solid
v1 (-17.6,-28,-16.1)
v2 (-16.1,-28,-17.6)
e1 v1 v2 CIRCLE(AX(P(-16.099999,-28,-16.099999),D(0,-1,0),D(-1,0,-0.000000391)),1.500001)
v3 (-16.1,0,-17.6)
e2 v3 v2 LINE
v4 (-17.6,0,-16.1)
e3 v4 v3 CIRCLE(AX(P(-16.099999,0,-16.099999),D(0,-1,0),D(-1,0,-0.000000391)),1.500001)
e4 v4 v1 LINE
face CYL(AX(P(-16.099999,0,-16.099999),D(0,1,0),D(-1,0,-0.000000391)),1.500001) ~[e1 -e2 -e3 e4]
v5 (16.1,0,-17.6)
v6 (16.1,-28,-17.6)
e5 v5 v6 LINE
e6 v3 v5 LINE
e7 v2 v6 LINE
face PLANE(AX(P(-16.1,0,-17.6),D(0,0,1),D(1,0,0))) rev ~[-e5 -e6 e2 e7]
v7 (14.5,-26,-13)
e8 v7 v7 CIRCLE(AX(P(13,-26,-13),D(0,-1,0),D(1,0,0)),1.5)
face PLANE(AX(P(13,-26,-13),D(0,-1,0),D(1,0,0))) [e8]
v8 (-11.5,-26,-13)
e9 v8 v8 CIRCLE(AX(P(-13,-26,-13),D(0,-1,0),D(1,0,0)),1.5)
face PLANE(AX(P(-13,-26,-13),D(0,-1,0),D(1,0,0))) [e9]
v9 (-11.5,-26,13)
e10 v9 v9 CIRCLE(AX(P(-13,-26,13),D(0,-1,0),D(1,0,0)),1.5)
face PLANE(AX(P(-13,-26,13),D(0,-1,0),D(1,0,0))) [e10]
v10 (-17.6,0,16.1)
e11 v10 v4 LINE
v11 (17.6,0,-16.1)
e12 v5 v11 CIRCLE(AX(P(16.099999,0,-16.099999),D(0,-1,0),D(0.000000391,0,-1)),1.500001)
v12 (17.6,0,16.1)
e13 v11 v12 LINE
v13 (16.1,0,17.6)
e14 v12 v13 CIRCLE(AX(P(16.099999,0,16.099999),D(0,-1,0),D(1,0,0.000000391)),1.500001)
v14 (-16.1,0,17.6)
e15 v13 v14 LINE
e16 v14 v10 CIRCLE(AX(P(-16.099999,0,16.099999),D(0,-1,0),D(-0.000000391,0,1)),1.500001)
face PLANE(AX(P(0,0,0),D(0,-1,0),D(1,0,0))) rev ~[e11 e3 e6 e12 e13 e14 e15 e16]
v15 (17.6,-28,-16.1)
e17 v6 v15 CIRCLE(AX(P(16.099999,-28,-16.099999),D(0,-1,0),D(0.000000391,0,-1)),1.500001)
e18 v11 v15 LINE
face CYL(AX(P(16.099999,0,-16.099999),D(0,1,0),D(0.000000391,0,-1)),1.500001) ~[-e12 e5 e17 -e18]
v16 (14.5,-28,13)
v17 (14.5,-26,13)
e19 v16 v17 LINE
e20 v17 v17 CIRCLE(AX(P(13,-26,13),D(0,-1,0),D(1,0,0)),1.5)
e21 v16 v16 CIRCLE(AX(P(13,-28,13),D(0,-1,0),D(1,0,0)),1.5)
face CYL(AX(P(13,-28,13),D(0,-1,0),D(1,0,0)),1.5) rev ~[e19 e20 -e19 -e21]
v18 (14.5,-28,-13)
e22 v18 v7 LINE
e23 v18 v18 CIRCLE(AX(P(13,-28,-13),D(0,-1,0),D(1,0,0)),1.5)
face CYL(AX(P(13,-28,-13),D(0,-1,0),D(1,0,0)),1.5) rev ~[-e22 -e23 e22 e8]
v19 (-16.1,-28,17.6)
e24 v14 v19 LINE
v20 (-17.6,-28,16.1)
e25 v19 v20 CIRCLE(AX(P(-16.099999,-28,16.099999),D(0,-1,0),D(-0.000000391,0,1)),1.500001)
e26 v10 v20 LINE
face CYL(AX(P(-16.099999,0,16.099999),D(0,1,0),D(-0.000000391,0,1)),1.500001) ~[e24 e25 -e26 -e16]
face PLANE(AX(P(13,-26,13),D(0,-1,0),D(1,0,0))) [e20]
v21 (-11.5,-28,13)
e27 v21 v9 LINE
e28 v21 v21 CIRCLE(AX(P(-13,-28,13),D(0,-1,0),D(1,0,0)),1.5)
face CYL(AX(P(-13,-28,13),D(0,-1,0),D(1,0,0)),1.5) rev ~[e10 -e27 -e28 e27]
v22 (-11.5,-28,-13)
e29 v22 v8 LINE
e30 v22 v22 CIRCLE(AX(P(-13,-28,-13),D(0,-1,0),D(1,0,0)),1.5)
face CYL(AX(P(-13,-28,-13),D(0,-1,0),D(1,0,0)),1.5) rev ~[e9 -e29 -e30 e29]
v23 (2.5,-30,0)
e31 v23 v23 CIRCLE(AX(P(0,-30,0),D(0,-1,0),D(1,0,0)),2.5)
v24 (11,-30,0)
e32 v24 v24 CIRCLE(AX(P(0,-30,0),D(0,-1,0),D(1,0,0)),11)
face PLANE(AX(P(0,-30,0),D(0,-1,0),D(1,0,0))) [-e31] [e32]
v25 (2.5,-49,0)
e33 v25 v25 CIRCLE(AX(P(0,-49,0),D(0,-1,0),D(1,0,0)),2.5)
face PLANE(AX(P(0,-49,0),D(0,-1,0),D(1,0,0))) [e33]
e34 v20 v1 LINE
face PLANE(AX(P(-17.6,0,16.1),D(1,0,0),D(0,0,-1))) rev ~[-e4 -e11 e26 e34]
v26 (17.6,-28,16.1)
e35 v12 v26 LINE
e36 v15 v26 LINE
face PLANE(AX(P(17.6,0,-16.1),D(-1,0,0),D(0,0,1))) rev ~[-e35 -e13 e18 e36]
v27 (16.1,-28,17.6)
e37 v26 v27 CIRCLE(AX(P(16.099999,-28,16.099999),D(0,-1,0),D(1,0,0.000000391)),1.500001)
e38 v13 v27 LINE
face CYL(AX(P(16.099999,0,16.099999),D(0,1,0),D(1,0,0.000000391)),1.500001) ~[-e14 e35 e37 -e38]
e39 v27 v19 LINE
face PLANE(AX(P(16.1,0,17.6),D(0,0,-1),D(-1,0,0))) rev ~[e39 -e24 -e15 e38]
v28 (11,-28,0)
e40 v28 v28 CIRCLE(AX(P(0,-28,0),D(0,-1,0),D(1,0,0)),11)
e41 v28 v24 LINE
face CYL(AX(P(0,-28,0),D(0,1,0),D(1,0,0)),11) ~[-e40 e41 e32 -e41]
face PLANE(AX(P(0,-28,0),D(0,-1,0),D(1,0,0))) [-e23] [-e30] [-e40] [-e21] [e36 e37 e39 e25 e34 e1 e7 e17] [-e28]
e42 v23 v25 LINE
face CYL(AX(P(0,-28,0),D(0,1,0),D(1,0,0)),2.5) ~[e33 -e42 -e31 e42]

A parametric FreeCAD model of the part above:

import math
import FreeCAD as App
import Part
import Sketcher
Q = App.Units.Quantity

doc = App.newDocument("Part")
params = doc.addObject("Spreadsheet::Sheet", "Params")
for row, (alias, value) in enumerate([
    ("sketch1_radius", "1.500001 mm"),
    ("sketch1_width", "32.2 mm"),
    ("pad1_length", "28 mm"),
    ("sketch2_diameter", "22 mm"),
    ("sketch2_diameter2", "5 mm"),
    ("pad2_length", "2 mm"),
    ("sketch3_diameter", "3 mm"),
    ("pocket1_length", "2 mm"),
    ("sketch4_diameter", "5 mm"),
    ("pad3_length", "21 mm"),
], start=1):
    params.set(f"A{row}", alias)
    params.set(f"B{row}", "=" + value)
    params.setAlias(f"B{row}", alias)

body = doc.addObject("PartDesign::Body", "Body")

sketch1 = body.newObject("Sketcher::SketchObject", "Sketch")
sketch1.AttachmentSupport = (doc.getObject("XZ_Plane"), [""])
sketch1.MapMode = "FlatFace"
sketch1.addGeometry([
    Part.LineSegment(App.Vector(-16.1, -17.6, 0), App.Vector(16.1, -17.6, 0)),
    Part.ArcOfCircle(Part.Circle(App.Vector(16.1, -16.1, 0), App.Vector(0, 0, 1), 1.5), math.radians(-90), math.radians(0)),
    Part.LineSegment(App.Vector(17.6, -16.1, 0), App.Vector(17.6, 16.1, 0)),
    Part.ArcOfCircle(Part.Circle(App.Vector(16.1, 16.1, 0), App.Vector(0, 0, 1), 1.5), math.radians(0), math.radians(90)),
    Part.LineSegment(App.Vector(16.1, 17.6, 0), App.Vector(-16.1, 17.6, 0)),
    Part.ArcOfCircle(Part.Circle(App.Vector(-16.1, 16.1, 0), App.Vector(0, 0, 1), 1.5), math.radians(90), math.radians(180)),
    Part.LineSegment(App.Vector(-17.6, 16.1, 0), App.Vector(-17.6, -16.1, 0)),
    Part.ArcOfCircle(Part.Circle(App.Vector(-16.1, -16.1, 0), App.Vector(0, 0, 1), 1.5), math.radians(-180), math.radians(-90)),
], False)
sketch1.addConstraint([
    Sketcher.Constraint("Tangent", 0, 2, 1, 1),
    Sketcher.Constraint("Tangent", 1, 2, 2, 1),
    Sketcher.Constraint("Tangent", 2, 2, 3, 1),
    Sketcher.Constraint("Tangent", 3, 2, 4, 1),
    Sketcher.Constraint("Tangent", 4, 2, 5, 1),
    Sketcher.Constraint("Tangent", 5, 2, 6, 1),
    Sketcher.Constraint("Tangent", 6, 2, 7, 1),
    Sketcher.Constraint("Tangent", 7, 2, 0, 1),
    Sketcher.Constraint("Horizontal", 0),
    Sketcher.Constraint("Vertical", 2),
    Sketcher.Constraint("Horizontal", 4),
    Sketcher.Constraint("Vertical", 6),
    Sketcher.Constraint("Equal", 1, 3),
    Sketcher.Constraint("Equal", 3, 5),
    Sketcher.Constraint("Equal", 5, 7),
    Sketcher.Constraint("Symmetric", 1, 3, 5, 3, -1, 1),
    Sketcher.Constraint("Equal", 4, 2),
    Sketcher.Constraint("Radius", 1, Q("1.500001 mm")),
    Sketcher.Constraint("DistanceX", 0, 1, 0, 2, Q("32.2 mm")),
])
sketch1.setExpression("Constraints[17]", "Params.sketch1_radius")
sketch1.setExpression("Constraints[18]", "Params.sketch1_width")
pad1 = body.newObject("PartDesign::Pad", "Pad")
pad1.Profile = sketch1
pad1.setExpression("Length", "Params.pad1_length")

sketch2 = body.newObject("Sketcher::SketchObject", "Sketch001")
sketch2.AttachmentSupport = (doc.getObject("XZ_Plane"), [""])
sketch2.MapMode = "FlatFace"
sketch2.AttachmentOffset = App.Placement(App.Vector(0, 0, 28), App.Rotation())
sketch2.addGeometry([
    Part.Circle(App.Vector(0, 0, 0), App.Vector(0, 0, 1), 11),
    Part.Circle(App.Vector(0, 0, 0), App.Vector(0, 0, 1), 2.5),
], False)
sketch2.addConstraint([
    Sketcher.Constraint("Coincident", 0, 3, -1, 1),
    Sketcher.Constraint("Coincident", 1, 3, -1, 1),
    Sketcher.Constraint("Diameter", 0, Q("22 mm")),
    Sketcher.Constraint("Diameter", 1, Q("5 mm")),
])
sketch2.setExpression("Constraints[2]", "Params.sketch2_diameter")
sketch2.setExpression("Constraints[3]", "Params.sketch2_diameter2")
pad2 = body.newObject("PartDesign::Pad", "Pad001")
pad2.Profile = sketch2
pad2.setExpression("Length", "Params.pad2_length")

sketch3 = body.newObject("Sketcher::SketchObject", "Sketch002")
sketch3.AttachmentSupport = (doc.getObject("XZ_Plane"), [""])
sketch3.MapMode = "FlatFace"
sketch3.AttachmentOffset = App.Placement(App.Vector(0, 0, 28), App.Rotation())
sketch3.addGeometry([
    Part.Circle(App.Vector(-13, 13, 0), App.Vector(0, 0, 1), 1.5),
    Part.Circle(App.Vector(13, 13, 0), App.Vector(0, 0, 1), 1.5),
    Part.Circle(App.Vector(13, -13, 0), App.Vector(0, 0, 1), 1.5),
    Part.Circle(App.Vector(-13, -13, 0), App.Vector(0, 0, 1), 1.5),
], False)
sketch3.addConstraint([
    Sketcher.Constraint("Equal", 0, 1),
    Sketcher.Constraint("Equal", 1, 2),
    Sketcher.Constraint("Equal", 2, 3),
    Sketcher.Constraint("Symmetric", 0, 3, 2, 3, -1, 1),
    Sketcher.Constraint("Symmetric", 1, 3, 3, 3, -1, 1),
    Sketcher.Constraint("Symmetric", 0, 3, 1, 3, -2),
    Sketcher.Constraint("Diameter", 0, Q("3 mm")),
    Sketcher.Constraint("DistanceX", 0, 3, -1, 1, Q("13 mm")),
    Sketcher.Constraint("DistanceY", -1, 1, 0, 3, Q("13 mm")),
])
sketch3.setExpression("Constraints[6]", "Params.sketch3_diameter")
pocket1 = body.newObject("PartDesign::Pocket", "Pocket")
pocket1.Profile = sketch3
pocket1.setExpression("Length", "Params.pocket1_length")

sketch4 = body.newObject("Sketcher::SketchObject", "Sketch003")
sketch4.AttachmentSupport = (doc.getObject("XZ_Plane"), [""])
sketch4.MapMode = "FlatFace"
sketch4.AttachmentOffset = App.Placement(App.Vector(0, 0, 28), App.Rotation())
sketch4.addGeometry(Part.Circle(App.Vector(0, 0, 0), App.Vector(0, 0, 1), 2.5), False)
sketch4.addConstraint([
    Sketcher.Constraint("Coincident", 0, 3, -1, 1),
    Sketcher.Constraint("Diameter", 0, Q("5 mm")),
])
sketch4.setExpression("Constraints[1]", "Params.sketch4_diameter")
pad3 = body.newObject("PartDesign::Pad", "Pad002")
pad3.Profile = sketch4
pad3.setExpression("Length", "Params.pad3_length")

doc.recompute()
